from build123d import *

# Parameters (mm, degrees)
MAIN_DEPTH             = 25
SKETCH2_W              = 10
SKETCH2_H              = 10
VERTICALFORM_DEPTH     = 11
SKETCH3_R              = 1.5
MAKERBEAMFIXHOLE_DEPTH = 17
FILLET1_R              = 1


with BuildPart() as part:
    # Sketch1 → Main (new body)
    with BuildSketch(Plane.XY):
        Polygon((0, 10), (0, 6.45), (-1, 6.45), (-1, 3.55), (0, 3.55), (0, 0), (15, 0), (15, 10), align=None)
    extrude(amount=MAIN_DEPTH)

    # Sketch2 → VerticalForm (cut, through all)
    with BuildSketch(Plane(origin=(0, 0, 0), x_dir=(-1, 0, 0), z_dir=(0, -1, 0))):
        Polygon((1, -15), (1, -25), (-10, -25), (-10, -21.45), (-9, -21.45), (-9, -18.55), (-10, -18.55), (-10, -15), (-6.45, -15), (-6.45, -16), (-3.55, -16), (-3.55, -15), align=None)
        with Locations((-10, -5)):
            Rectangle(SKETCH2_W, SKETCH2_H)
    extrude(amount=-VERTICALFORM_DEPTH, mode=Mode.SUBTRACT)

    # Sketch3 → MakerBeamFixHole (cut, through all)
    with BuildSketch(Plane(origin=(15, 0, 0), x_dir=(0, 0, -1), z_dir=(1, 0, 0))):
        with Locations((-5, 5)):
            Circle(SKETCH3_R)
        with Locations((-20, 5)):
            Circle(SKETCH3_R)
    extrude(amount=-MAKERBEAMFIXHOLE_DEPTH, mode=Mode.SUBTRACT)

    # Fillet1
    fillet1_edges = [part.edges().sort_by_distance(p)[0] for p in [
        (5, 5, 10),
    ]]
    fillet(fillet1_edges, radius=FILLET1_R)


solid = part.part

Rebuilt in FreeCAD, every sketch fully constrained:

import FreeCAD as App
import Part
import Sketcher

V = App.Vector


def edges_at(feature, points):
    """Names of the edges that pass closest to the given points."""
    edges = feature.Shape.Edges
    near = lambda p: min(range(len(edges)), key=lambda i: edges[i].distToShape(Part.Vertex(*p))[0])
    return sorted({f"Edge{near(p) + 1}" for p in points})


def add_polygon(sketch, points):
    """Adds a closed chain of lines whose ends are joined by coincident constraints."""
    first, n = sketch.GeometryCount, len(points)
    for a, b in zip(points, points[1:] + points[:1]):
        sketch.addGeometry(Part.LineSegment(App.Vector(*a, 0), App.Vector(*b, 0)), False)
    for i in range(n):
        sketch.addConstraint(Sketcher.Constraint("Coincident", first + i, 2, first + (i + 1) % n, 1))

doc = App.newDocument("Part")
body = doc.addObject("PartDesign::Body", "Body")

sketch1 = doc.addObject("Sketcher::SketchObject", "Sketch")
body.addObject(sketch1)
sketch1.AttachmentSupport = (doc.XY_Plane, [""])
sketch1.MapMode = "FlatFace"
add_polygon(sketch1, [(0, 10), (0, 6.5), (-1, 6.5), (-1, 3.5), (0, 3.5), (0, 0), (15, 0), (15, 10)])
sketch1.addConstraint([
    Sketcher.Constraint("Vertical", 0),
    Sketcher.Constraint("Horizontal", 1),
    Sketcher.Constraint("Vertical", 2),
    Sketcher.Constraint("Horizontal", 3),
    Sketcher.Constraint("Vertical", 4),
    Sketcher.Constraint("Horizontal", 5),
    Sketcher.Constraint("Vertical", 6),
    Sketcher.Constraint("Horizontal", 7),
    Sketcher.Constraint("Coincident", 4, 2, -1, 1),
    Sketcher.Constraint("PointOnObject", 0, 2, -2),
    Sketcher.Constraint("Equal", 0, 4),
    Sketcher.Constraint("DistanceX", 1, 2, 1, 1, 1.0),
    Sketcher.Constraint("DistanceX", 5, 1, 5, 2, 15.0),
    Sketcher.Constraint("DistanceY", 6, 1, 6, 2, 10.0),
    Sketcher.Constraint("DistanceY", 2, 2, 2, 1, 2.9),
])
pad1 = doc.addObject("PartDesign::Pad", "Pad")
body.addObject(pad1)
pad1.Profile = sketch1
pad1.Length = 25

sketch2 = doc.addObject("Sketcher::SketchObject", "Sketch001")
body.addObject(sketch2)
sketch2.AttachmentSupport = (doc.XZ_Plane, [""])
sketch2.MapMode = "FlatFace"
add_polygon(sketch2, [(-1, 25), (-1, 15), (3.5, 15), (3.5, 16), (6.5, 16), (6.5, 15), (10, 15), (10, 18.6), (9, 18.6), (9, 21.4), (10, 21.4), (10, 25)])
add_polygon(sketch2, [(15, 0), (15, 10), (5, 10), (5, 0)])
sketch2.addConstraint([
    Sketcher.Constraint("Vertical", 0),
    Sketcher.Constraint("Horizontal", 1),
    Sketcher.Constraint("Vertical", 2),
    Sketcher.Constraint("Horizontal", 3),
    Sketcher.Constraint("Vertical", 4),
    Sketcher.Constraint("Horizontal", 5),
    Sketcher.Constraint("Vertical", 6),
    Sketcher.Constraint("Horizontal", 7),
    Sketcher.Constraint("Vertical", 8),
    Sketcher.Constraint("Horizontal", 9),
    Sketcher.Constraint("Vertical", 10),
    Sketcher.Constraint("Horizontal", 11),
    Sketcher.Constraint("Vertical", 12),
    Sketcher.Constraint("Horizontal", 13),
    Sketcher.Constraint("Vertical", 14),
    Sketcher.Constraint("Horizontal", 15),
    Sketcher.Constraint("PointOnObject", 14, 2, -1),
    Sketcher.Constraint("Horizontal", 1, 2, 4, 2),
    Sketcher.Constraint("Vertical", 6, 2, 9, 2),
    Sketcher.Constraint("Equal", 15, 0),
    Sketcher.Constraint("Equal", 9, 2),
    Sketcher.Constraint("Equal", 5, 6),
    Sketcher.Constraint("Equal", 3, 8),
    Sketcher.Constraint("Equal", 6, 10),
    Sketcher.Constraint("Equal", 0, 12),
    Sketcher.Constraint("DistanceX", 7, 2, 7, 1, 1.0),
    Sketcher.Constraint("DistanceX", 11, 2, 11, 1, 11.0),
    Sketcher.Constraint("DistanceX", 13, 2, 13, 1, 10.0),
    Sketcher.Constraint("DistanceX", 3, 1, 3, 2, 2.9),
    Sketcher.Constraint("DistanceX", 0, 2, -1, 1, 1.0),
    Sketcher.Constraint("DistanceY", -1, 1, 0, 2, 15.0),
    Sketcher.Constraint("DistanceX", -1, 1, 12, 2, 15.0),
])
pocket1 = doc.addObject("PartDesign::Pocket", "Pocket")
body.addObject(pocket1)
pocket1.Profile = sketch2
pocket1.Type = "ThroughAll"

sketch3 = doc.addObject("Sketcher::SketchObject", "Sketch002")
body.addObject(sketch3)
sketch3.AttachmentSupport = (doc.YZ_Plane, [""])
sketch3.MapMode = "FlatFace"
sketch3.AttachmentOffset = App.Placement(V(0, 0, 15), App.Rotation())
sketch3.addGeometry([
    Part.Circle(V(5, 5, 0), V(0, 0, 1), 1.5),
    Part.Circle(V(5, 20, 0), V(0, 0, 1), 1.5),
], False)
sketch3.addConstraint([
    Sketcher.Constraint("Equal", 0, 1),
    Sketcher.Constraint("Vertical", 0, 3, 1, 3),
    Sketcher.Constraint("Diameter", 0, 3.0),
    Sketcher.Constraint("DistanceX", -1, 1, 0, 3, 5.0),
    Sketcher.Constraint("DistanceY", -1, 1, 0, 3, 5.0),
    Sketcher.Constraint("DistanceY", -1, 1, 1, 3, 20.0),
])
pocket2 = doc.addObject("PartDesign::Pocket", "Pocket001")
body.addObject(pocket2)
pocket2.Profile = sketch3
pocket2.Type = "ThroughAll"
doc.recompute()

fillet = doc.addObject("PartDesign::Fillet", "Fillet")
body.addObject(fillet)
fillet.Base = (pocket2, edges_at(pocket2, [(5, 5, 10)]))
fillet.Radius = 1

doc.recompute()
